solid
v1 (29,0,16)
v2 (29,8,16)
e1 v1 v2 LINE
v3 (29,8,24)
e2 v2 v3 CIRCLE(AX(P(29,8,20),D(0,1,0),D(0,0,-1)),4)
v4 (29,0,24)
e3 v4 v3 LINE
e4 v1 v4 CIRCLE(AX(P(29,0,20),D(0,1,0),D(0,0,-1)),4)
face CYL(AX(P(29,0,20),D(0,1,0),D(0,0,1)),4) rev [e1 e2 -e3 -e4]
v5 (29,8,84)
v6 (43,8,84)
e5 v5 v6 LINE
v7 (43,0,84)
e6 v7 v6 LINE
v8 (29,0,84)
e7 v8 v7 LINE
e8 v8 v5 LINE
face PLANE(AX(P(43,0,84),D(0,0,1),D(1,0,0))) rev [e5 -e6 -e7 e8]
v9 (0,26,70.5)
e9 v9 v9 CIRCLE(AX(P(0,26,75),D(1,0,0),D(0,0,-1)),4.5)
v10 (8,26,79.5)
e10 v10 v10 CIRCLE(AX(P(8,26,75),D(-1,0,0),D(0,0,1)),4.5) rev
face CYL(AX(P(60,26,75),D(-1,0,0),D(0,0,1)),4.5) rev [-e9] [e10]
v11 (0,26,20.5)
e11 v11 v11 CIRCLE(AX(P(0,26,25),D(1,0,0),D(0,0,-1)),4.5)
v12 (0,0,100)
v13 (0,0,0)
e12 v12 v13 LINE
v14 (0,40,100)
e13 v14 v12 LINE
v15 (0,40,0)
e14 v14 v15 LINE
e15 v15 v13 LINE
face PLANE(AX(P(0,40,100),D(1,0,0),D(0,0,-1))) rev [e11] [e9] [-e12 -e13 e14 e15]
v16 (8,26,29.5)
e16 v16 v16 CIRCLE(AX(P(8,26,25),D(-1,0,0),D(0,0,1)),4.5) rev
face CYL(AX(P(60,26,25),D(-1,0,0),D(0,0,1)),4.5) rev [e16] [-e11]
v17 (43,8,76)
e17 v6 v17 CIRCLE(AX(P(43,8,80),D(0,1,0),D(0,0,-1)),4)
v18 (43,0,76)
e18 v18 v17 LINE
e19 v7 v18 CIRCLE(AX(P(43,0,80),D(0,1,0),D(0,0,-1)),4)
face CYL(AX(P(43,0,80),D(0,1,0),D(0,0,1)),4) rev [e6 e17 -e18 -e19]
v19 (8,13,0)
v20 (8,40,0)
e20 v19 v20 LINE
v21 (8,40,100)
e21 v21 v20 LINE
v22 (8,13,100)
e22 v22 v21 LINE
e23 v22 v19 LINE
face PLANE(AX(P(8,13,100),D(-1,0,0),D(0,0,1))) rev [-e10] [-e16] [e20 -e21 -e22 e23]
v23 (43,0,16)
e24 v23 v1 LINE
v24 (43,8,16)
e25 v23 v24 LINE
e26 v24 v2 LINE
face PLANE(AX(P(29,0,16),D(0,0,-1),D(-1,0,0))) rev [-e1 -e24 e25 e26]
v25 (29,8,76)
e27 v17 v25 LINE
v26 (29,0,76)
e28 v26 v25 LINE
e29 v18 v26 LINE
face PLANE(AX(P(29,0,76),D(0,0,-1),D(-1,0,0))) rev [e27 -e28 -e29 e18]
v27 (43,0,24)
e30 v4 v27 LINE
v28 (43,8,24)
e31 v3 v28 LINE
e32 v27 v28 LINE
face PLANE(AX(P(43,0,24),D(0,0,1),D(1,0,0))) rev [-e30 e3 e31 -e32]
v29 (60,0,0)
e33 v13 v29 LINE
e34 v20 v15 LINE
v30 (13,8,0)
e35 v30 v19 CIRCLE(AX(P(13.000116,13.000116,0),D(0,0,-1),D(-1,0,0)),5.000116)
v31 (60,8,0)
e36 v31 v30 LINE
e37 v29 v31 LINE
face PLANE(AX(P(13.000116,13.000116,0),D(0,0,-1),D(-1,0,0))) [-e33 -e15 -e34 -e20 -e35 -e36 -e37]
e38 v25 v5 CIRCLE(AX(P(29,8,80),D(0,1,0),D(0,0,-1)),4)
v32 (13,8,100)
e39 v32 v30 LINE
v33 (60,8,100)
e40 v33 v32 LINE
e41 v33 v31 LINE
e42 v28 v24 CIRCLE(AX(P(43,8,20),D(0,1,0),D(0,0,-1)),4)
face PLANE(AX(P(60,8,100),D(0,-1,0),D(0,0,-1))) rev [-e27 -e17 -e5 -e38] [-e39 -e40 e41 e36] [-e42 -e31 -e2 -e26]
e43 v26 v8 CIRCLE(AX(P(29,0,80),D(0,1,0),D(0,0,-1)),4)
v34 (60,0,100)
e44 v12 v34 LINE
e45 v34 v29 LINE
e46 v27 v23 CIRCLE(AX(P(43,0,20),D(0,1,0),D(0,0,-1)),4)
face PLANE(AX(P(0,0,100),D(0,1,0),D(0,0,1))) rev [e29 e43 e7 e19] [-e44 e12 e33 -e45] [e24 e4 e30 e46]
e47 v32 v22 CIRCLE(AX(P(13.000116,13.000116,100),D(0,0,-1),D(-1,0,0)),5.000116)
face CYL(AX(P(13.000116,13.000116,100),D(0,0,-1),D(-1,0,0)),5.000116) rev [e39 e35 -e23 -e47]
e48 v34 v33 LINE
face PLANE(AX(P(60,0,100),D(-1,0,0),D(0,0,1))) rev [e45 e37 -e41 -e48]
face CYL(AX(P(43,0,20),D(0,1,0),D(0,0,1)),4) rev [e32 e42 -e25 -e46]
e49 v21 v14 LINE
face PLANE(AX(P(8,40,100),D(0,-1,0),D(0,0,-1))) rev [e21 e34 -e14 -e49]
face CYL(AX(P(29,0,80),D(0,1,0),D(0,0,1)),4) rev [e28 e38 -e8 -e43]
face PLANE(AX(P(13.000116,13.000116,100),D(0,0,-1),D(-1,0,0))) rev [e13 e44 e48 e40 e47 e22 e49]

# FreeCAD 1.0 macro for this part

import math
import FreeCAD as App
import Part
import Sketcher
from FreeCAD import Vector

doc = App.newDocument("Part")
params = doc.addObject("Spreadsheet::Sheet", "Params")
for row, (alias, value) in enumerate([
    ("sketch1_width", "60 mm"),
    ("sketch1_width2", "47 mm"),
    ("sketch1_width3", "8 mm"),
    ("sketch1_height", "27 mm"),
    ("sketch1_height2", "40 mm"),
    ("pad1_length", "100 mm"),
    ("sketch2_radius", "4 mm"),
    ("sketch2_width", "14 mm"),
    ("sketch3_diameter", "9 mm"),
], start=1):
    params.set(f"A{row}", alias)
    params.set(f"B{row}", "=" + value)
    params.setAlias(f"B{row}", alias)

body = doc.addObject("PartDesign::Body", "Body")

sketch1 = body.newObject("Sketcher::SketchObject", "Sketch")
sketch1.AttachmentSupport = (doc.getObject("XY_Plane"), [""])
sketch1.MapMode = "FlatFace"
sketch1.addGeometry([
    Part.LineSegment(Vector(0, 0, 0), Vector(60, 0, 0)),
    Part.LineSegment(Vector(60, 0, 0), Vector(60, 8, 0)),
    Part.LineSegment(Vector(60, 8, 0), Vector(13, 8, 0)),
    Part.ArcOfCircle(Part.Circle(Vector(13, 13, 0), Vector(0, 0, 1), 5), math.radians(-180), math.radians(-90)),
    Part.LineSegment(Vector(8, 13, 0), Vector(8, 40, 0)),
    Part.LineSegment(Vector(8, 40, 0), Vector(0, 40, 0)),
    Part.LineSegment(Vector(0, 40, 0), Vector(0, 0, 0)),
], False)
sketch1.addConstraint([
    Sketcher.Constraint("Coincident", 0, 2, 1, 1),
    Sketcher.Constraint("Coincident", 1, 2, 2, 1),
    Sketcher.Constraint("Coincident", 2, 2, 3, 2),
    Sketcher.Constraint("Coincident", 3, 1, 4, 1),
    Sketcher.Constraint("Coincident", 4, 2, 5, 1),
    Sketcher.Constraint("Coincident", 5, 2, 6, 1),
    Sketcher.Constraint("Coincident", 6, 2, 0, 1),
    Sketcher.Constraint("Horizontal", 0),
    Sketcher.Constraint("Vertical", 1),
    Sketcher.Constraint("Horizontal", 2),
    Sketcher.Constraint("Vertical", 4),
    Sketcher.Constraint("Horizontal", 5),
    Sketcher.Constraint("Vertical", 6),
    Sketcher.Constraint("Coincident", 6, 2, -1, 1),
    Sketcher.Constraint("Equal", 5, 1),
    Sketcher.Constraint("DistanceX", 0, 1, 0, 2, 60.0),
    Sketcher.Constraint("DistanceX", 2, 2, 2, 1, 47.0),
    Sketcher.Constraint("DistanceX", 5, 2, 5, 1, 8.0),
    Sketcher.Constraint("DistanceY", 4, 1, 4, 2, 27.0),
    Sketcher.Constraint("DistanceY", 6, 2, 6, 1, 40.0),
    Sketcher.Constraint("Radius", 3, 5.000116),
])
sketch1.setExpression("Constraints[15]", "Params.sketch1_width")
sketch1.setExpression("Constraints[16]", "Params.sketch1_width2")
sketch1.setExpression("Constraints[17]", "Params.sketch1_width3")
sketch1.setExpression("Constraints[18]", "Params.sketch1_height")
sketch1.setExpression("Constraints[19]", "Params.sketch1_height2")
pad1 = body.newObject("PartDesign::Pad", "Pad")
pad1.Profile = sketch1
pad1.setExpression("Length", "Params.pad1_length")

sketch2 = body.newObject("Sketcher::SketchObject", "Sketch001")
sketch2.AttachmentSupport = (doc.getObject("XZ_Plane"), [""])
sketch2.MapMode = "FlatFace"
sketch2.AttachmentOffset = App.Placement(Vector(0, 0, -8), App.Rotation())
sketch2.addGeometry([
    Part.LineSegment(Vector(43, 16, 0), Vector(29, 16, 0)),
    Part.ArcOfCircle(Part.Circle(Vector(29, 20, 0), Vector(0, 0, 1), 4), math.radians(90), math.radians(270)),
    Part.LineSegment(Vector(29, 24, 0), Vector(43, 24, 0)),
    Part.ArcOfCircle(Part.Circle(Vector(43, 20, 0), Vector(0, 0, 1), 4), math.radians(-90), math.radians(90)),
    Part.LineSegment(Vector(43, 76, 0), Vector(29, 76, 0)),
    Part.ArcOfCircle(Part.Circle(Vector(29, 80, 0), Vector(0, 0, 1), 4), math.radians(90), math.radians(270)),
    Part.LineSegment(Vector(29, 84, 0), Vector(43, 84, 0)),
    Part.ArcOfCircle(Part.Circle(Vector(43, 80, 0), Vector(0, 0, 1), 4), math.radians(-90), math.radians(90)),
], False)
sketch2.addConstraint([
    Sketcher.Constraint("Tangent", 0, 2, 1, 2),
    Sketcher.Constraint("Tangent", 1, 1, 2, 1),
    Sketcher.Constraint("Tangent", 2, 2, 3, 2),
    Sketcher.Constraint("Tangent", 3, 1, 0, 1),
    Sketcher.Constraint("Tangent", 4, 2, 5, 2),
    Sketcher.Constraint("Tangent", 5, 1, 6, 1),
    Sketcher.Constraint("Tangent", 6, 2, 7, 2),
    Sketcher.Constraint("Tangent", 7, 1, 4, 1),
    Sketcher.Constraint("Horizontal", 0),
    Sketcher.Constraint("Horizontal", 2),
    Sketcher.Constraint("Horizontal", 4),
    Sketcher.Constraint("Horizontal", 6),
    Sketcher.Constraint("Equal", 3, 5),
    Sketcher.Constraint("Vertical", 1, 3, 5, 3),
    Sketcher.Constraint("Vertical", 3, 3, 7, 3),
    Sketcher.Constraint("Radius", 1, 4.0),
    Sketcher.Constraint("DistanceX", 0, 2, 0, 1, 14.0),
    Sketcher.Constraint("DistanceX", -1, 1, 1, 3, 29.0),
    Sketcher.Constraint("DistanceY", -1, 1, 1, 3, 20.0),
    Sketcher.Constraint("DistanceY", -1, 1, 5, 3, 80.0),
])
sketch2.setExpression("Constraints[15]", "Params.sketch2_radius")
sketch2.setExpression("Constraints[16]", "Params.sketch2_width")
pocket1 = body.newObject("PartDesign::Pocket", "Pocket")
pocket1.Profile = sketch2
pocket1.Type = "ThroughAll"
pocket1.Reversed = True

sketch3 = body.newObject("Sketcher::SketchObject", "Sketch002")
sketch3.AttachmentSupport = (doc.getObject("YZ_Plane"), [""])
sketch3.MapMode = "FlatFace"
sketch3.addGeometry([
    Part.Circle(Vector(26, 25, 0), Vector(0, 0, 1), 4.5),
    Part.Circle(Vector(26, 75, 0), Vector(0, 0, 1), 4.5),
], False)
sketch3.addConstraint([
    Sketcher.Constraint("Equal", 0, 1),
    Sketcher.Constraint("Vertical", 0, 3, 1, 3),
    Sketcher.Constraint("Diameter", 0, 9.0),
    Sketcher.Constraint("DistanceX", -1, 1, 0, 3, 26.0),
    Sketcher.Constraint("DistanceY", -1, 1, 0, 3, 25.0),
    Sketcher.Constraint("DistanceY", -1, 1, 1, 3, 75.0),
])
sketch3.setExpression("Constraints[2]", "Params.sketch3_diameter")
pocket2 = body.newObject("PartDesign::Pocket", "Pocket001")
pocket2.Profile = sketch3
pocket2.Type = "ThroughAll"
pocket2.Reversed = True

doc.recompute()
